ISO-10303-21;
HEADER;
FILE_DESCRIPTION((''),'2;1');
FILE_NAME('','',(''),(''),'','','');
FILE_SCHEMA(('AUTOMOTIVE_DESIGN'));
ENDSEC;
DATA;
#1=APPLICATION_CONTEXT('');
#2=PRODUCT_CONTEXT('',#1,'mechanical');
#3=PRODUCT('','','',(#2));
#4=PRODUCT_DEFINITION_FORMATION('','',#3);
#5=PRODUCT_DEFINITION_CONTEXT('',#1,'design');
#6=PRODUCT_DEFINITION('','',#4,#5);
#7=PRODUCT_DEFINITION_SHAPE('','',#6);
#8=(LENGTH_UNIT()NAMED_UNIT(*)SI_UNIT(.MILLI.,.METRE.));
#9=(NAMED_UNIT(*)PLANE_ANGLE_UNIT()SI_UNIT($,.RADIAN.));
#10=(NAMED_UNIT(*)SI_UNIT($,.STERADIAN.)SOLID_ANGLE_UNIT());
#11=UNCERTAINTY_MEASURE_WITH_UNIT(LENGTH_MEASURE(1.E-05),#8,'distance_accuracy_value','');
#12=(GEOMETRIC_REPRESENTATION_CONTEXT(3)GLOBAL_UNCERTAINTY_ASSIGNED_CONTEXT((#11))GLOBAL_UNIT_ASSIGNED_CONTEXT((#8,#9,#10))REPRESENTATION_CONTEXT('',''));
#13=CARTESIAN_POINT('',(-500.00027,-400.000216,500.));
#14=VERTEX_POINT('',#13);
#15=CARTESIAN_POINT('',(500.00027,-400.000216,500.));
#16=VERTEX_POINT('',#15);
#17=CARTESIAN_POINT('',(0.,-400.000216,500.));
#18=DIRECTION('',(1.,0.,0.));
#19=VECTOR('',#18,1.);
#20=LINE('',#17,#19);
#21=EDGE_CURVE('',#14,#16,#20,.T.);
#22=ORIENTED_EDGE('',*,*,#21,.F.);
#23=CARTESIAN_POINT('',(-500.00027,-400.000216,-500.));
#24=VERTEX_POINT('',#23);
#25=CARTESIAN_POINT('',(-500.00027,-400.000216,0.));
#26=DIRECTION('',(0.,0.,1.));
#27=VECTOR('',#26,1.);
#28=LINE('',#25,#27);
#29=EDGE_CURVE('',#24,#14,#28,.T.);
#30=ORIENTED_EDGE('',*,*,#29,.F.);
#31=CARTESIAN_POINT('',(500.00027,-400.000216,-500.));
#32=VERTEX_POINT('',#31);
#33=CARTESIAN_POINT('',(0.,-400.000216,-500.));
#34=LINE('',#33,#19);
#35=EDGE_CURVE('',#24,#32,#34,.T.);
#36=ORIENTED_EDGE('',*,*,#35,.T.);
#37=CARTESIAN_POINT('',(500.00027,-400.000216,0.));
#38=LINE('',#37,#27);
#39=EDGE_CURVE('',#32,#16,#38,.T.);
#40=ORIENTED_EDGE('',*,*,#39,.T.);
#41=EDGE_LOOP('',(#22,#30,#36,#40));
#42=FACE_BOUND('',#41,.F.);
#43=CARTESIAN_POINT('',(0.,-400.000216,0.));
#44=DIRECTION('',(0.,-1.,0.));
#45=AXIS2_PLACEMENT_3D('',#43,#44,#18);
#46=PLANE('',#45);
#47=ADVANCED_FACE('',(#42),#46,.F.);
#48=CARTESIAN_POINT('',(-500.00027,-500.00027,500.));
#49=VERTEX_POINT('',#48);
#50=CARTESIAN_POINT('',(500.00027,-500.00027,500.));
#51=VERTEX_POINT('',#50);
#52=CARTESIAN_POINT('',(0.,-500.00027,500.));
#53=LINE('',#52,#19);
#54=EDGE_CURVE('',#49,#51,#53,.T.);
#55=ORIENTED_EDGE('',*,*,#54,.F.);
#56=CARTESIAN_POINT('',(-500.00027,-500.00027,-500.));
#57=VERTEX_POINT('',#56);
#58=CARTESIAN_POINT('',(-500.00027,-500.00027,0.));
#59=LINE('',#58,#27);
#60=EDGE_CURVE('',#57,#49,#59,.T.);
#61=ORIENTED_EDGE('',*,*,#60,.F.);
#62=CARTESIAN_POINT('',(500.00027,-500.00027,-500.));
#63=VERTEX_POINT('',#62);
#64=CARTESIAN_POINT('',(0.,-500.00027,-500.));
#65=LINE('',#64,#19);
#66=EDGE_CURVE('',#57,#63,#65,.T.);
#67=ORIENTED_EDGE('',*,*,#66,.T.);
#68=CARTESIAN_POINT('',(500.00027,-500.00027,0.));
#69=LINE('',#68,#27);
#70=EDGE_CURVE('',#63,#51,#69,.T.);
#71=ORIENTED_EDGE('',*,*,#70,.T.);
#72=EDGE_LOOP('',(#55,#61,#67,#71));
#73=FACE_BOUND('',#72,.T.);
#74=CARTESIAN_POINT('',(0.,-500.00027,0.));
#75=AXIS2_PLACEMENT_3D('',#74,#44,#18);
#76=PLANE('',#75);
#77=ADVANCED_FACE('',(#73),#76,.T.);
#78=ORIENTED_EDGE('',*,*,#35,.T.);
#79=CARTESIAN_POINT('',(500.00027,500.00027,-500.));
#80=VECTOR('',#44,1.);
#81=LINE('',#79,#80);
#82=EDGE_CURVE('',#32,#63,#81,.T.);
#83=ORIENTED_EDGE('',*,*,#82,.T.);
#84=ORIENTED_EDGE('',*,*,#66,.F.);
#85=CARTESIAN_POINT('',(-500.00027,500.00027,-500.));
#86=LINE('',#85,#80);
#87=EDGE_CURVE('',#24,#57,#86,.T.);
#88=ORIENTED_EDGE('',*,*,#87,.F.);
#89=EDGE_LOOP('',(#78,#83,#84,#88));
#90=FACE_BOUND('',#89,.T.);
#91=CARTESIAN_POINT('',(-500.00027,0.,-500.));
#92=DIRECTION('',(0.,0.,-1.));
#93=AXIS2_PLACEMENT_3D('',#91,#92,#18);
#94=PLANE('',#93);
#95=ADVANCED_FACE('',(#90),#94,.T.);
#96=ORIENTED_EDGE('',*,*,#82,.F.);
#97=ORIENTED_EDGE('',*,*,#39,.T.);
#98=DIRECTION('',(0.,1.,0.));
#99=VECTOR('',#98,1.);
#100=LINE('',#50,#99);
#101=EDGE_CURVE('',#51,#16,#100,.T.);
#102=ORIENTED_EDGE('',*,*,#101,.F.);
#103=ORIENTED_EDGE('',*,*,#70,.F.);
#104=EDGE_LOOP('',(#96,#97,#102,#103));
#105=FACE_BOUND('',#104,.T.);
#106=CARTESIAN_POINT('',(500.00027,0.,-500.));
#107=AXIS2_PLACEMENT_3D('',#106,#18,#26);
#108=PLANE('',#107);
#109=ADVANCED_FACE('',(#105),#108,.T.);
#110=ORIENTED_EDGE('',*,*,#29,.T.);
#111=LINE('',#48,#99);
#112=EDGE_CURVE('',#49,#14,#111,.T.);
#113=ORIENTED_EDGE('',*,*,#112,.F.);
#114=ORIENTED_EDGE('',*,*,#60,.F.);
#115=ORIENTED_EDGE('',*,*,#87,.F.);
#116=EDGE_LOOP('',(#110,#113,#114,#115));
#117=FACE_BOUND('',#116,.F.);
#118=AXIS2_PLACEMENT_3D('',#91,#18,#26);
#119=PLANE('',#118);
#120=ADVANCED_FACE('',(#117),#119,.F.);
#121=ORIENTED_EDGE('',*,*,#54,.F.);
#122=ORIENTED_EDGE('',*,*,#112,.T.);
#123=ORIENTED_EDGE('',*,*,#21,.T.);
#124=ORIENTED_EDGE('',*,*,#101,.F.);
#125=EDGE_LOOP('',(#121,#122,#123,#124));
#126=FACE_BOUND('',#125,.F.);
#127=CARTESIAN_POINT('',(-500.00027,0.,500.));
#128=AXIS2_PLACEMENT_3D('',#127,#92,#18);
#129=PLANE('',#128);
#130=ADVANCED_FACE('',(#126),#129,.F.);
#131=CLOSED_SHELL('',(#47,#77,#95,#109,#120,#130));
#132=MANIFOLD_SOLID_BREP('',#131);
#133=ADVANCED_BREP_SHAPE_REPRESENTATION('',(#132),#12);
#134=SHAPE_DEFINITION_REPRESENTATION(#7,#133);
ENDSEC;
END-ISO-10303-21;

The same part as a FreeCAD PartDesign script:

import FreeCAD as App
import Part
import Sketcher

V = App.Vector
Q = App.Units.Quantity

doc = App.newDocument("Part")
params = doc.addObject("Spreadsheet::Sheet", "Params")
for row, (alias, value) in enumerate([
    ("sketch1_height", "1000 mm"),
    ("pad1_length", "1000.00054 mm"),
    ("sketch2_height", "1000 mm"),
    ("pocket1_length", "1000.00054 mm"),
], start=1):
    params.set(f"A{row}", alias)
    params.set(f"B{row}", "=" + value)
    params.setAlias(f"B{row}", alias)

body = doc.addObject("PartDesign::Body", "Body")

# Sketch on XZ plane
sketch1 = body.newObject("Sketcher::SketchObject", "Sketch")
sketch1.AttachmentSupport = (doc.getObject("XZ_Plane"), [""])
sketch1.MapMode = "FlatFace"
sketch1.addGeometry(Part.LineSegment(V(-500.00027, 500, 0), V(-500.00027, -500, 0)), False)
sketch1.addGeometry(Part.LineSegment(V(-500.00027, -500, 0), V(500.00027, -500, 0)), False)
sketch1.addGeometry(Part.LineSegment(V(500.00027, -500, 0), V(500.00027, 500, 0)), False)
sketch1.addGeometry(Part.LineSegment(V(500.00027, 500, 0), V(-500.00027, 500, 0)), False)
sketch1.addConstraint(Sketcher.Constraint("Coincident", 0, 2, 1, 1))
sketch1.addConstraint(Sketcher.Constraint("Coincident", 1, 2, 2, 1))
sketch1.addConstraint(Sketcher.Constraint("Coincident", 2, 2, 3, 1))
sketch1.addConstraint(Sketcher.Constraint("Coincident", 3, 2, 0, 1))
sketch1.addConstraint(Sketcher.Constraint("Vertical", 0))
sketch1.addConstraint(Sketcher.Constraint("Horizontal", 1))
sketch1.addConstraint(Sketcher.Constraint("Vertical", 2))
sketch1.addConstraint(Sketcher.Constraint("Horizontal", 3))
sketch1.addConstraint(Sketcher.Constraint("Symmetric", 0, 2, 2, 2, -1, 1))
sketch1.addConstraint(Sketcher.Constraint("DistanceY", 0, 2, 0, 1, Q("1000 mm")))
sketch1.addConstraint(Sketcher.Constraint("DistanceX", 1, 1, 1, 2, Q("1000.00054 mm")))
sketch1.setExpression("Constraints[9]", "Params.sketch1_height")
pad1 = body.newObject("PartDesign::Pad", "Pad")
pad1.Profile = sketch1
pad1.setExpression("Length", "Params.pad1_length")
pad1.Midplane = True

# Sketch on XZ plane
sketch2 = body.newObject("Sketcher::SketchObject", "Sketch001")
sketch2.AttachmentSupport = (doc.getObject("XZ_Plane"), [""])
sketch2.MapMode = "FlatFace"
sketch2.AttachmentOffset = App.Placement(V(0, 0, 400.000216), App.Rotation())
sketch2.addGeometry(Part.LineSegment(V(-500.00027, 500, 0), V(-500.00027, -500, 0)), False)
sketch2.addGeometry(Part.LineSegment(V(-500.00027, -500, 0), V(500.00027, -500, 0)), False)
sketch2.addGeometry(Part.LineSegment(V(500.00027, -500, 0), V(500.00027, 500, 0)), False)
sketch2.addGeometry(Part.LineSegment(V(500.00027, 500, 0), V(-500.00027, 500, 0)), False)
sketch2.addConstraint(Sketcher.Constraint("Coincident", 0, 2, 1, 1))
sketch2.addConstraint(Sketcher.Constraint("Coincident", 1, 2, 2, 1))
sketch2.addConstraint(Sketcher.Constraint("Coincident", 2, 2, 3, 1))
sketch2.addConstraint(Sketcher.Constraint("Coincident", 3, 2, 0, 1))
sketch2.addConstraint(Sketcher.Constraint("Vertical", 0))
sketch2.addConstraint(Sketcher.Constraint("Horizontal", 1))
sketch2.addConstraint(Sketcher.Constraint("Vertical", 2))
sketch2.addConstraint(Sketcher.Constraint("Horizontal", 3))
sketch2.addConstraint(Sketcher.Constraint("Symmetric", 0, 2, 2, 2, -1, 1))
sketch2.addConstraint(Sketcher.Constraint("DistanceY", 0, 2, 0, 1, Q("1000 mm")))
sketch2.addConstraint(Sketcher.Constraint("DistanceX", 1, 1, 1, 2, Q("1000.00054 mm")))
sketch2.setExpression("Constraints[9]", "Params.sketch2_height")
pocket1 = body.newObject("PartDesign::Pocket", "Pocket")
pocket1.Profile = sketch2
pocket1.setExpression("Length", "Params.pocket1_length")

doc.recompute()
